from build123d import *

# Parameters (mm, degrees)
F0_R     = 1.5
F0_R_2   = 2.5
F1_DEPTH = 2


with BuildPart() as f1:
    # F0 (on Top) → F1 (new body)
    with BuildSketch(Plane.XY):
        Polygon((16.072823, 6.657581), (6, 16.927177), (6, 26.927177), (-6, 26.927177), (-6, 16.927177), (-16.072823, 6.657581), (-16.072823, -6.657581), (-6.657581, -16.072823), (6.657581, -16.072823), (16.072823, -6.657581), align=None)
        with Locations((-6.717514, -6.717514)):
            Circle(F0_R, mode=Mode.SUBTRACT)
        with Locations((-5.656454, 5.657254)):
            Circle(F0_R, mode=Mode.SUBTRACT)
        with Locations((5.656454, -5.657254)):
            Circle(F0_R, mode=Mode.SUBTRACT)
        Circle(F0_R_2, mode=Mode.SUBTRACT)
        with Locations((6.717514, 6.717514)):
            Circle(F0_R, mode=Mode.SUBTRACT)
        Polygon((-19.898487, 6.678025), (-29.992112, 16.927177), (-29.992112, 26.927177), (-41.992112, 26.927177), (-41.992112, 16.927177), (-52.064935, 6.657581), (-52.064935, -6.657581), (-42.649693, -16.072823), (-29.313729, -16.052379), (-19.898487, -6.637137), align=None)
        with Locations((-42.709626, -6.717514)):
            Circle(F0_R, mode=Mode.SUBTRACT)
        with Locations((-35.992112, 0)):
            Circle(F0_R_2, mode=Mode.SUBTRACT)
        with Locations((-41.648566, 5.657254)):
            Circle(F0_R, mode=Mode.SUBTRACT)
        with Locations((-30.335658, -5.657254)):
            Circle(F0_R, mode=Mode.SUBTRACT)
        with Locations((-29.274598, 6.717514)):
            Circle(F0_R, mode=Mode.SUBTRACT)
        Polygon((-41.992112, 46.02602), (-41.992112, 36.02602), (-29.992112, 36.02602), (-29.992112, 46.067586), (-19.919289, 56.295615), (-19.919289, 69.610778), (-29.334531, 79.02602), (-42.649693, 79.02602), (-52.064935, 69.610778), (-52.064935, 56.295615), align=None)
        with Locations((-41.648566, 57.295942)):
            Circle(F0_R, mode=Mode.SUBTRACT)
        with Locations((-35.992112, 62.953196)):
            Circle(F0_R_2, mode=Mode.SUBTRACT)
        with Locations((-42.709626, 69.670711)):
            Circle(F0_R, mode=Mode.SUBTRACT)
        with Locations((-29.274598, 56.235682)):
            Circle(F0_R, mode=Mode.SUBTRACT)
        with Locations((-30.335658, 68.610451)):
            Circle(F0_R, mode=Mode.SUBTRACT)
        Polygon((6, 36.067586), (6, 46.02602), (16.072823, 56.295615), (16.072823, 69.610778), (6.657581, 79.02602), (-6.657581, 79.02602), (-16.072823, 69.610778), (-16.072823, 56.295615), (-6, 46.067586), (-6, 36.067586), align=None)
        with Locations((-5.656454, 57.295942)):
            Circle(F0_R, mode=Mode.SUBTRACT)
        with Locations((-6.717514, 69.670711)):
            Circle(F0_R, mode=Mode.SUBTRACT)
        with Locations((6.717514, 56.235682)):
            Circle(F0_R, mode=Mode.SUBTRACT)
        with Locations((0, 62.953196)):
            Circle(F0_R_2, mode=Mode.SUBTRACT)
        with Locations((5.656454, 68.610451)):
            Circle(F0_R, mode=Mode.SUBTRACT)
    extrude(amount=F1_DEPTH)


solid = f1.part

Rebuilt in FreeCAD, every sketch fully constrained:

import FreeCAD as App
import Part
import Sketcher

doc = App.newDocument("Part")
params = doc.addObject("Spreadsheet::Sheet", "Params")
for row, (alias, value) in enumerate([
    ("sketch1_diameter", "3 mm"),
    ("sketch1_diameter2", "5 mm"),
    ("sketch1_width", "12 mm"),
    ("sketch1_height", "10 mm"),
    ("pad1_length", "2 mm"),
], start=1):
    params.set(f"A{row}", alias)
    params.set(f"B{row}", "=" + value)
    params.setAlias(f"B{row}", alias)

body = doc.addObject("PartDesign::Body", "Body")
body.AllowCompound = True

sketch1 = body.newObject("Sketcher::SketchObject", "Sketch")
sketch1.AttachmentSupport = (doc.getObject("XY_Plane"), [""])
sketch1.MapMode = "FlatFace"
sketch1.addGeometry([
    Part.LineSegment(App.Vector(16.072823, 6.657581, 0), App.Vector(6, 16.927177, 0)),
    Part.LineSegment(App.Vector(6, 16.927177, 0), App.Vector(6, 26.927177, 0)),
    Part.LineSegment(App.Vector(6, 26.927177, 0), App.Vector(-6, 26.927177, 0)),
    Part.LineSegment(App.Vector(-6, 26.927177, 0), App.Vector(-6, 16.927177, 0)),
    Part.LineSegment(App.Vector(-6, 16.927177, 0), App.Vector(-16.072823, 6.657581, 0)),
    Part.LineSegment(App.Vector(-16.072823, 6.657581, 0), App.Vector(-16.072823, -6.657581, 0)),
    Part.LineSegment(App.Vector(-16.072823, -6.657581, 0), App.Vector(-6.657581, -16.072823, 0)),
    Part.LineSegment(App.Vector(-6.657581, -16.072823, 0), App.Vector(6.657581, -16.072823, 0)),
    Part.LineSegment(App.Vector(6.657581, -16.072823, 0), App.Vector(16.072823, -6.657581, 0)),
    Part.LineSegment(App.Vector(16.072823, -6.657581, 0), App.Vector(16.072823, 6.657581, 0)),
    Part.Circle(App.Vector(-6.717514, -6.717514, 0), App.Vector(0, 0, 1), 1.5),
    Part.Circle(App.Vector(5.656454, -5.657254, 0), App.Vector(0, 0, 1), 1.5),
    Part.Circle(App.Vector(-5.656454, 5.657254, 0), App.Vector(0, 0, 1), 1.5),
    Part.Circle(App.Vector(0, 0, 0), App.Vector(0, 0, 1), 2.5),
    Part.Circle(App.Vector(6.717514, 6.717514, 0), App.Vector(0, 0, 1), 1.5),
    Part.LineSegment(App.Vector(-19.898487, 6.678025, 0), App.Vector(-29.992112, 16.927177, 0)),
    Part.LineSegment(App.Vector(-29.992112, 16.927177, 0), App.Vector(-29.992112, 26.927177, 0)),
    Part.LineSegment(App.Vector(-29.992112, 26.927177, 0), App.Vector(-41.992112, 26.927177, 0)),
    Part.LineSegment(App.Vector(-41.992112, 26.927177, 0), App.Vector(-41.992112, 16.927177, 0)),
    Part.LineSegment(App.Vector(-41.992112, 16.927177, 0), App.Vector(-52.064935, 6.657581, 0)),
    Part.LineSegment(App.Vector(-52.064935, 6.657581, 0), App.Vector(-52.064935, -6.657581, 0)),
    Part.LineSegment(App.Vector(-52.064935, -6.657581, 0), App.Vector(-42.649693, -16.072823, 0)),
    Part.LineSegment(App.Vector(-42.649693, -16.072823, 0), App.Vector(-29.313729, -16.052379, 0)),
    Part.LineSegment(App.Vector(-29.313729, -16.052379, 0), App.Vector(-19.898487, -6.637137, 0)),
    Part.LineSegment(App.Vector(-19.898487, -6.637137, 0), App.Vector(-19.898487, 6.678025, 0)),
    Part.Circle(App.Vector(-42.709626, -6.717514, 0), App.Vector(0, 0, 1), 1.5),
    Part.Circle(App.Vector(-30.335658, -5.657254, 0), App.Vector(0, 0, 1), 1.5),
    Part.Circle(App.Vector(-41.648566, 5.657254, 0), App.Vector(0, 0, 1), 1.5),
    Part.Circle(App.Vector(-35.992112, 0, 0), App.Vector(0, 0, 1), 2.5),
    Part.Circle(App.Vector(-29.274598, 6.717514, 0), App.Vector(0, 0, 1), 1.5),
    Part.LineSegment(App.Vector(-41.992112, 46.02602, 0), App.Vector(-41.992112, 36.02602, 0)),
    Part.LineSegment(App.Vector(-41.992112, 36.02602, 0), App.Vector(-29.992112, 36.02602, 0)),
    Part.LineSegment(App.Vector(-29.992112, 36.02602, 0), App.Vector(-29.992112, 46.067586, 0)),
    Part.LineSegment(App.Vector(-29.992112, 46.067586, 0), App.Vector(-19.919289, 56.295615, 0)),
    Part.LineSegment(App.Vector(-19.919289, 56.295615, 0), App.Vector(-19.919289, 69.610778, 0)),
    Part.LineSegment(App.Vector(-19.919289, 69.610778, 0), App.Vector(-29.334531, 79.02602, 0)),
    Part.LineSegment(App.Vector(-29.334531, 79.02602, 0), App.Vector(-42.649693, 79.02602, 0)),
    Part.LineSegment(App.Vector(-42.649693, 79.02602, 0), App.Vector(-52.064935, 69.610778, 0)),
    Part.LineSegment(App.Vector(-52.064935, 69.610778, 0), App.Vector(-52.064935, 56.295615, 0)),
    Part.LineSegment(App.Vector(-52.064935, 56.295615, 0), App.Vector(-41.992112, 46.02602, 0)),
    Part.Circle(App.Vector(-41.648566, 57.295942, 0), App.Vector(0, 0, 1), 1.5),
    Part.Circle(App.Vector(-29.274598, 56.235682, 0), App.Vector(0, 0, 1), 1.5),
    Part.Circle(App.Vector(-35.992112, 62.953196, 0), App.Vector(0, 0, 1), 2.5),
    Part.Circle(App.Vector(-42.709626, 69.670711, 0), App.Vector(0, 0, 1), 1.5),
    Part.Circle(App.Vector(-30.335658, 68.610451, 0), App.Vector(0, 0, 1), 1.5),
    Part.LineSegment(App.Vector(6, 36.067586, 0), App.Vector(6, 46.02602, 0)),
    Part.LineSegment(App.Vector(6, 46.02602, 0), App.Vector(16.072823, 56.295615, 0)),
    Part.LineSegment(App.Vector(16.072823, 56.295615, 0), App.Vector(16.072823, 69.610778, 0)),
    Part.LineSegment(App.Vector(16.072823, 69.610778, 0), App.Vector(6.657581, 79.02602, 0)),
    Part.LineSegment(App.Vector(6.657581, 79.02602, 0), App.Vector(-6.657581, 79.02602, 0)),
    Part.LineSegment(App.Vector(-6.657581, 79.02602, 0), App.Vector(-16.072823, 69.610778, 0)),
    Part.LineSegment(App.Vector(-16.072823, 69.610778, 0), App.Vector(-16.072823, 56.295615, 0)),
    Part.LineSegment(App.Vector(-16.072823, 56.295615, 0), App.Vector(-6, 46.067586, 0)),
    Part.LineSegment(App.Vector(-6, 46.067586, 0), App.Vector(-6, 36.067586, 0)),
    Part.LineSegment(App.Vector(-6, 36.067586, 0), App.Vector(6, 36.067586, 0)),
    Part.Circle(App.Vector(-5.656454, 57.295942, 0), App.Vector(0, 0, 1), 1.5),
    Part.Circle(App.Vector(6.717514, 56.235682, 0), App.Vector(0, 0, 1), 1.5),
    Part.Circle(App.Vector(0, 62.953196, 0), App.Vector(0, 0, 1), 2.5),
    Part.Circle(App.Vector(-6.717514, 69.670711, 0), App.Vector(0, 0, 1), 1.5),
    Part.Circle(App.Vector(5.656454, 68.610451, 0), App.Vector(0, 0, 1), 1.5),
], False)
sketch1.addConstraint([
    Sketcher.Constraint("Coincident", 0, 2, 1, 1),
    Sketcher.Constraint("Coincident", 1, 2, 2, 1),
    Sketcher.Constraint("Coincident", 2, 2, 3, 1),
    Sketcher.Constraint("Coincident", 3, 2, 4, 1),
    Sketcher.Constraint("Coincident", 4, 2, 5, 1),
    Sketcher.Constraint("Coincident", 5, 2, 6, 1),
    Sketcher.Constraint("Coincident", 6, 2, 7, 1),
    Sketcher.Constraint("Coincident", 7, 2, 8, 1),
    Sketcher.Constraint("Coincident", 8, 2, 9, 1),
    Sketcher.Constraint("Coincident", 9, 2, 0, 1),
    Sketcher.Constraint("Coincident", 15, 2, 16, 1),
    Sketcher.Constraint("Coincident", 16, 2, 17, 1),
    Sketcher.Constraint("Coincident", 17, 2, 18, 1),
    Sketcher.Constraint("Coincident", 18, 2, 19, 1),
    Sketcher.Constraint("Coincident", 19, 2, 20, 1),
    Sketcher.Constraint("Coincident", 20, 2, 21, 1),
    Sketcher.Constraint("Coincident", 21, 2, 22, 1),
    Sketcher.Constraint("Coincident", 22, 2, 23, 1),
    Sketcher.Constraint("Coincident", 23, 2, 24, 1),
    Sketcher.Constraint("Coincident", 24, 2, 15, 1),
    Sketcher.Constraint("Coincident", 30, 2, 31, 1),
    Sketcher.Constraint("Coincident", 31, 2, 32, 1),
    Sketcher.Constraint("Coincident", 32, 2, 33, 1),
    Sketcher.Constraint("Coincident", 33, 2, 34, 1),
    Sketcher.Constraint("Coincident", 34, 2, 35, 1),
    Sketcher.Constraint("Coincident", 35, 2, 36, 1),
    Sketcher.Constraint("Coincident", 36, 2, 37, 1),
    Sketcher.Constraint("Coincident", 37, 2, 38, 1),
    Sketcher.Constraint("Coincident", 38, 2, 39, 1),
    Sketcher.Constraint("Coincident", 39, 2, 30, 1),
    Sketcher.Constraint("Coincident", 45, 2, 46, 1),
    Sketcher.Constraint("Coincident", 46, 2, 47, 1),
    Sketcher.Constraint("Coincident", 47, 2, 48, 1),
    Sketcher.Constraint("Coincident", 48, 2, 49, 1),
    Sketcher.Constraint("Coincident", 49, 2, 50, 1),
    Sketcher.Constraint("Coincident", 50, 2, 51, 1),
    Sketcher.Constraint("Coincident", 51, 2, 52, 1),
    Sketcher.Constraint("Coincident", 52, 2, 53, 1),
    Sketcher.Constraint("Coincident", 53, 2, 54, 1),
    Sketcher.Constraint("Coincident", 54, 2, 45, 1),
    Sketcher.Constraint("Vertical", 1),
    Sketcher.Constraint("Horizontal", 2),
    Sketcher.Constraint("Vertical", 3),
    Sketcher.Constraint("Vertical", 5),
    Sketcher.Constraint("Horizontal", 7),
    Sketcher.Constraint("Vertical", 9),
    Sketcher.Constraint("Vertical", 16),
    Sketcher.Constraint("Horizontal", 17),
    Sketcher.Constraint("Vertical", 18),
    Sketcher.Constraint("Vertical", 20),
    Sketcher.Constraint("Vertical", 24),
    Sketcher.Constraint("Vertical", 30),
    Sketcher.Constraint("Horizontal", 31),
    Sketcher.Constraint("Vertical", 32),
    Sketcher.Constraint("Vertical", 34),
    Sketcher.Constraint("Horizontal", 36),
    Sketcher.Constraint("Vertical", 38),
    Sketcher.Constraint("Vertical", 45),
    Sketcher.Constraint("Vertical", 47),
    Sketcher.Constraint("Horizontal", 49),
    Sketcher.Constraint("Vertical", 51),
    Sketcher.Constraint("Vertical", 53),
    Sketcher.Constraint("Horizontal", 54),
    Sketcher.Constraint("Coincident", 13, 3, -1, 1),
    Sketcher.Constraint("Equal", 10, 11),
    Sketcher.Constraint("Equal", 11, 12),
    Sketcher.Constraint("Equal", 12, 14),
    Sketcher.Constraint("Equal", 14, 25),
    Sketcher.Constraint("Equal", 25, 26),
    Sketcher.Constraint("Equal", 26, 27),
    Sketcher.Constraint("Equal", 13, 28),
    Sketcher.Constraint("Equal", 27, 29),
    Sketcher.Constraint("Equal", 29, 40),
    Sketcher.Constraint("Equal", 40, 41),
    Sketcher.Constraint("Equal", 28, 42),
    Sketcher.Constraint("Equal", 41, 43),
    Sketcher.Constraint("Equal", 43, 44),
    Sketcher.Constraint("Equal", 44, 55),
    Sketcher.Constraint("Equal", 55, 56),
    Sketcher.Constraint("Equal", 42, 57),
    Sketcher.Constraint("Equal", 56, 58),
    Sketcher.Constraint("Equal", 58, 59),
    Sketcher.Constraint("Symmetric", 11, 3, 12, 3, -1, 1),
    Sketcher.Constraint("Symmetric", 10, 3, 14, 3, -1, 1),
    Sketcher.Constraint("Symmetric", 4, 2, 8, 2, -1, 1),
    Sketcher.Constraint("Symmetric", 0, 2, 3, 2, -2),
    Sketcher.Constraint("Symmetric", 47, 2, 50, 2, -2),
    Sketcher.Constraint("PointOnObject", 28, 3, -1),
    Sketcher.Constraint("PointOnObject", 57, 3, -2),
    Sketcher.Constraint("Perpendicular", 6, 8),
    Sketcher.Constraint("Parallel", 4, 19),
    Sketcher.Constraint("Perpendicular", 8, 21),
    Sketcher.Constraint("Perpendicular", 21, 23),
    Sketcher.Constraint("Perpendicular", 23, 35),
    Sketcher.Constraint("Perpendicular", 35, 37),
    Sketcher.Constraint("Parallel", 0, 39),
    Sketcher.Constraint("Parallel", 19, 46),
    Sketcher.Constraint("Perpendicular", 37, 48),
    Sketcher.Constraint("Perpendicular", 48, 50),
    Sketcher.Constraint("Parallel", 15, 52),
    Sketcher.Constraint("Horizontal", 10, 3, 25, 3),
    Sketcher.Constraint("Horizontal", 11, 3, 26, 3),
    Sketcher.Constraint("Horizontal", 12, 3, 27, 3),
    Sketcher.Constraint("Horizontal", 14, 3, 29, 3),
    Sketcher.Constraint("Horizontal", 40, 3, 55, 3),
    Sketcher.Constraint("Horizontal", 41, 3, 56, 3),
    Sketcher.Constraint("Horizontal", 42, 3, 57, 3),
    Sketcher.Constraint("Horizontal", 43, 3, 58, 3),
    Sketcher.Constraint("Horizontal", 44, 3, 59, 3),
    Sketcher.Constraint("Horizontal", 5, 2, 8, 2),
    Sketcher.Constraint("Horizontal", 4, 2, 9, 2),
    Sketcher.Constraint("Horizontal", 3, 2, 15, 2),
    Sketcher.Constraint("Horizontal", 2, 2, 16, 2),
    Sketcher.Constraint("Horizontal", 15, 2, 18, 2),
    Sketcher.Constraint("Horizontal", 9, 2, 19, 2),
    Sketcher.Constraint("Horizontal", 8, 2, 20, 2),
    Sketcher.Constraint("Horizontal", 7, 2, 21, 2),
    Sketcher.Constraint("Horizontal", 34, 2, 37, 2),
    Sketcher.Constraint("Horizontal", 33, 2, 38, 2),
    Sketcher.Constraint("Horizontal", 39, 2, 45, 2),
    Sketcher.Constraint("Horizontal", 38, 2, 46, 2),
    Sketcher.Constraint("Horizontal", 37, 2, 47, 2),
    Sketcher.Constraint("Horizontal", 36, 2, 48, 2),
    Sketcher.Constraint("Horizontal", 46, 2, 51, 2),
    Sketcher.Constraint("Horizontal", 32, 2, 52, 2),
    Sketcher.Constraint("Vertical", 27, 3, 40, 3),
    Sketcher.Constraint("Vertical", 29, 3, 41, 3),
    Sketcher.Constraint("Vertical", 28, 3, 42, 3),
    Sketcher.Constraint("Vertical", 25, 3, 43, 3),
    Sketcher.Constraint("Vertical", 26, 3, 44, 3),
    Sketcher.Constraint("Vertical", 12, 3, 55, 3),
    Sketcher.Constraint("Vertical", 14, 3, 56, 3),
    Sketcher.Constraint("Vertical", 10, 3, 58, 3),
    Sketcher.Constraint("Vertical", 11, 3, 59, 3),
    Sketcher.Constraint("Vertical", 18, 2, 30, 2),
    Sketcher.Constraint("Vertical", 16, 2, 31, 2),
    Sketcher.Constraint("Vertical", 21, 2, 36, 2),
    Sketcher.Constraint("Vertical", 20, 2, 37, 2),
    Sketcher.Constraint("Vertical", 1, 2, 45, 2),
    Sketcher.Constraint("Vertical", 7, 2, 48, 2),
    Sketcher.Constraint("Vertical", 3, 2, 52, 2),
    Sketcher.Constraint("Equal", 2, 17),
    Sketcher.Constraint("Equal", 7, 36),
    Sketcher.Constraint("Equal", 49, 5),
    Sketcher.Constraint("Equal", 20, 24),
    Sketcher.Constraint("Equal", 18, 30),
    Sketcher.Constraint("Equal", 24, 34),
    Sketcher.Constraint("Equal", 30, 53),
    Sketcher.Constraint("Equal", 4, 15),
    Sketcher.Constraint("Equal", 21, 23),
    Sketcher.Constraint("Diameter", 10, 3.0),
    Sketcher.Constraint("Diameter", 13, 5.0),
    Sketcher.Constraint("DistanceX", 2, 2, 2, 1, 12.0),
    Sketcher.Constraint("DistanceY", 1, 1, 1, 2, 10.0),
    Sketcher.Constraint("DistanceX", 28, 3, 15, 2, 6.0),
    Sketcher.Constraint("DistanceX", 29, 3, -1, 1, 29.274598),
    Sketcher.Constraint("Distance", 22, 13.33598),
    Sketcher.Constraint("Distance", 33, 14.35529),
    Sketcher.Constraint("DistanceX", 7, 1, 7, 2, 13.315162),
    Sketcher.Constraint("DistanceY", -1, 1, 40, 3, 57.295942),
    Sketcher.Constraint("DistanceY", -1, 1, 41, 3, 56.235682),
    Sketcher.Constraint("DistanceY", -1, 1, 43, 3, 69.670711),
    Sketcher.Constraint("DistanceY", -1, 1, 44, 3, 68.610451),
    Sketcher.Constraint("DistanceX", 15, 2, -1, 1, 29.992112),
    Sketcher.Constraint("DistanceY", 22, 2, -1, 1, 16.052379),
    Sketcher.Constraint("DistanceY", -1, 1, 30, 2, 36.02602),
    Sketcher.Constraint("DistanceX", 10, 3, 11, 3, 12.373968),
    Sketcher.Constraint("DistanceY", 10, 3, 11, 3, 1.06026),
    Sketcher.Constraint("DistanceX", 10, 3, 12, 3, 1.06106),
    Sketcher.Constraint("DistanceY", 10, 3, 14, 3, 13.435028),
    Sketcher.Constraint("DistanceX", 25, 3, 11, 3, 48.36608),
    Sketcher.Constraint("DistanceX", 25, 3, 26, 3, 12.373968),
    Sketcher.Constraint("DistanceX", 25, 3, 27, 3, 1.06106),
    Sketcher.Constraint("DistanceY", 29, 3, 42, 3, 56.235682),
])
sketch1.setExpression("Constraints[150]", "Params.sketch1_diameter")
sketch1.setExpression("Constraints[151]", "Params.sketch1_diameter2")
sketch1.setExpression("Constraints[152]", "Params.sketch1_width")
sketch1.setExpression("Constraints[153]", "Params.sketch1_height")
pad1 = body.newObject("PartDesign::Pad", "Pad")
pad1.Profile = sketch1
pad1.setExpression("Length", "Params.pad1_length")

doc.recompute()
